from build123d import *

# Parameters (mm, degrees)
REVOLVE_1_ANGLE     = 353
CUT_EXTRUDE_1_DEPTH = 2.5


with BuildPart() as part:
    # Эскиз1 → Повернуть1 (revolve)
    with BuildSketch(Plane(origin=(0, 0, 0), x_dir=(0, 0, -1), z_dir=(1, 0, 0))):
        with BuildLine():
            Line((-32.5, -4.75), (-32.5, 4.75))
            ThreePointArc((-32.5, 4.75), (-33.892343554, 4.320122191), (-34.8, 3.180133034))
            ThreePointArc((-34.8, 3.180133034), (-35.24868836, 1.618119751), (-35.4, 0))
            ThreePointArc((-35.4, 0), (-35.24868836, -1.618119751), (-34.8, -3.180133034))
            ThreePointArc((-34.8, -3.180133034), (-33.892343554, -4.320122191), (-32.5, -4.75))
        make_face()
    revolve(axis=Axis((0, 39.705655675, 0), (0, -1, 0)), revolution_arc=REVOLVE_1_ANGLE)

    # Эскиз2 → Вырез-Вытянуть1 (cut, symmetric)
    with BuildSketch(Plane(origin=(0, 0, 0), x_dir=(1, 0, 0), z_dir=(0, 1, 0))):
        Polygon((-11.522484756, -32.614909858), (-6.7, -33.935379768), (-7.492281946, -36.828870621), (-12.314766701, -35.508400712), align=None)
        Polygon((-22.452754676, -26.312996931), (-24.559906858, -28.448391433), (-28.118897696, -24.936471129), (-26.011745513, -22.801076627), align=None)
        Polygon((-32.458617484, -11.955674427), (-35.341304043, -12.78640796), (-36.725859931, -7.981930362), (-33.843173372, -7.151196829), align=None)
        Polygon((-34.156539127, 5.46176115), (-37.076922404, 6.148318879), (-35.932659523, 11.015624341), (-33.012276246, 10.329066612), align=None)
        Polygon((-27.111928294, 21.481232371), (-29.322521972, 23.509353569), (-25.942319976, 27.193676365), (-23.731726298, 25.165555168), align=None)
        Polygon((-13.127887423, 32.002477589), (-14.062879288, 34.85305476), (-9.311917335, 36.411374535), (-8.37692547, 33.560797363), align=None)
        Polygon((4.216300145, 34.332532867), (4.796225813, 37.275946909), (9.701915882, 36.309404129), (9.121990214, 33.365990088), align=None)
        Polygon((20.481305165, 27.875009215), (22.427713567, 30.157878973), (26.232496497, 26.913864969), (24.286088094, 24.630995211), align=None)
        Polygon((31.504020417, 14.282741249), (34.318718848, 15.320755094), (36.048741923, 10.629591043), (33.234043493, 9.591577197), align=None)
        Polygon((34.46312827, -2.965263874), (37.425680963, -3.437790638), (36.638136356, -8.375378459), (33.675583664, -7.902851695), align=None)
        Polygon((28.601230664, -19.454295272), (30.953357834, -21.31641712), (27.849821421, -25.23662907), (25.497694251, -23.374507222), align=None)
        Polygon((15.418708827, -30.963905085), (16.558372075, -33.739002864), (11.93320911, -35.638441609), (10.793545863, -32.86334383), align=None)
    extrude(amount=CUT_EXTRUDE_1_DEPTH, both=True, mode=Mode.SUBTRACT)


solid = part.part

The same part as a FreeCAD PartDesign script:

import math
import FreeCAD as App
import Part
import Sketcher
from FreeCAD import Vector


def add_polygon(sketch, points):
    """Adds a closed chain of lines whose ends are joined by coincident constraints."""
    first, n = sketch.GeometryCount, len(points)
    for a, b in zip(points, points[1:] + points[:1]):
        sketch.addGeometry(Part.LineSegment(App.Vector(*a, 0), App.Vector(*b, 0)), False)
    for i in range(n):
        sketch.addConstraint(Sketcher.Constraint("Coincident", first + i, 2, first + (i + 1) % n, 1))

doc = App.newDocument("Part")
body = doc.addObject("PartDesign::Body", "Body")

# Sketch on YZ plane
sketch1 = body.newObject("Sketcher::SketchObject", "Sketch")
sketch1.AttachmentSupport = (doc.getObject("YZ_Plane"), [""])
sketch1.MapMode = "FlatFace"
sketch1.addGeometry([
    Part.LineSegment(Vector(-4.75, 32.5, 0), Vector(4.75, 32.5, 0)),  # 0
    Part.ArcOfCircle(Part.Circle(Vector(2.28021, 32.5, 0), Vector(0, 0, 1), 2.46979), math.radians(0), math.radians(68.631049)),  # 1
    Part.ArcOfCircle(Part.Circle(Vector(0, 26.672295, 0), Vector(0, 0, 1), 8.727705), math.radians(68.631049), math.radians(90)),  # 2
    Part.ArcOfCircle(Part.Circle(Vector(0, 26.672295, 0), Vector(0, 0, 1), 8.727705), math.radians(90), math.radians(111.368951)),  # 3
    Part.ArcOfCircle(Part.Circle(Vector(-2.28021, 32.5, 0), Vector(0, 0, 1), 2.46979), math.radians(111.368951), math.radians(180)),  # 4
], False)
sketch1.addConstraint([
    Sketcher.Constraint("Coincident", 0, 2, 1, 1),
    Sketcher.Constraint("Tangent", 1, 2, 2, 1),
    Sketcher.Constraint("Tangent", 2, 2, 3, 1),
    Sketcher.Constraint("Tangent", 3, 2, 4, 1),
    Sketcher.Constraint("Coincident", 4, 2, 0, 1),
    Sketcher.Constraint("Horizontal", 0),
    Sketcher.Constraint("Equal", 2, 3),
    Sketcher.Constraint("Equal", 1, 4),
    Sketcher.Constraint("Symmetric", 1, 3, 4, 3, -2),
    Sketcher.Constraint("PointOnObject", 2, 2, -2),
    Sketcher.Constraint("Horizontal", 4, 3, 0, 2),
    Sketcher.Constraint("DistanceX", 0, 1, 0, 2, 9.5),
    Sketcher.Constraint("DistanceY", -1, 1, 1, 3, 32.5),
    Sketcher.Constraint("DistanceY", -1, 1, 1, 2, 34.8),
    Sketcher.Constraint("DistanceY", -1, 1, 2, 2, 35.4),
])
revolution = body.newObject("PartDesign::Revolution", "Revolution")
revolution.Profile = sketch1
revolution.ReferenceAxis = (sketch1, ["H_Axis"])
revolution.Angle = 353
revolution.Reversed = True

# Sketch on XZ plane
sketch2 = body.newObject("Sketcher::SketchObject", "Sketch001")
sketch2.AttachmentSupport = (doc.getObject("XZ_Plane"), [""])
sketch2.MapMode = "FlatFace"
add_polygon(sketch2, [(-6.7, 33.93538), (-11.522485, 32.61491), (-12.314767, 35.508401), (-7.492282, 36.828871)])  # lines 0-3
add_polygon(sketch2, [(-24.559907, 28.448391), (-22.452755, 26.312997), (-26.011746, 22.801077), (-28.118898, 24.936471)])  # lines 4-7
add_polygon(sketch2, [(-35.341304, 12.786408), (-32.458617, 11.955674), (-33.843173, 7.151197), (-36.72586, 7.98193)])  # lines 8-11
add_polygon(sketch2, [(-37.076922, -6.148319), (-34.156539, -5.461761), (-33.012276, -10.329067), (-35.93266, -11.015624)])  # lines 12-15
add_polygon(sketch2, [(-29.322522, -23.509354), (-27.111928, -21.481232), (-23.731726, -25.165555), (-25.94232, -27.193676)])  # lines 16-19
add_polygon(sketch2, [(-14.062879, -34.853055), (-13.127887, -32.002478), (-8.376925, -33.560797), (-9.311917, -36.411375)])  # lines 20-23
add_polygon(sketch2, [(4.796226, -37.275947), (4.2163, -34.332533), (9.12199, -33.36599), (9.701916, -36.309404)])  # lines 24-27
add_polygon(sketch2, [(22.427714, -30.157879), (20.481305, -27.875009), (24.286088, -24.630995), (26.232496, -26.913865)])  # lines 28-31
add_polygon(sketch2, [(34.318719, -15.320755), (31.50402, -14.282741), (33.234043, -9.591577), (36.048742, -10.629591)])  # lines 32-35
add_polygon(sketch2, [(37.425681, 3.437791), (34.463128, 2.965264), (33.675584, 7.902852), (36.638136, 8.375378)])  # lines 36-39
add_polygon(sketch2, [(30.953358, 21.316417), (28.601231, 19.454295), (25.497694, 23.374507), (27.849821, 25.236629)])  # lines 40-43
add_polygon(sketch2, [(16.558372, 33.739003), (15.418709, 30.963905), (10.793546, 32.863344), (11.933209, 35.638442)])  # lines 44-47
sketch2.addConstraint([
    Sketcher.Constraint("Perpendicular", 0, 1),
    Sketcher.Constraint("Perpendicular", 1, 2),
    Sketcher.Constraint("Perpendicular", 2, 3),
    Sketcher.Constraint("Perpendicular", 4, 5),
    Sketcher.Constraint("Perpendicular", 5, 6),
    Sketcher.Constraint("Perpendicular", 6, 7),
    Sketcher.Constraint("Perpendicular", 8, 9),
    Sketcher.Constraint("Perpendicular", 9, 10),
    Sketcher.Constraint("Perpendicular", 10, 11),
    Sketcher.Constraint("Perpendicular", 12, 13),
    Sketcher.Constraint("Perpendicular", 13, 14),
    Sketcher.Constraint("Perpendicular", 14, 15),
    Sketcher.Constraint("Perpendicular", 16, 17),
    Sketcher.Constraint("Perpendicular", 17, 18),
    Sketcher.Constraint("Perpendicular", 18, 19),
    Sketcher.Constraint("Perpendicular", 20, 21),
    Sketcher.Constraint("Perpendicular", 21, 22),
    Sketcher.Constraint("Perpendicular", 22, 23),
    Sketcher.Constraint("Perpendicular", 24, 25),
    Sketcher.Constraint("Perpendicular", 25, 26),
    Sketcher.Constraint("Perpendicular", 26, 27),
    Sketcher.Constraint("Perpendicular", 28, 29),
    Sketcher.Constraint("Perpendicular", 29, 30),
    Sketcher.Constraint("Perpendicular", 30, 31),
    Sketcher.Constraint("Perpendicular", 32, 33),
    Sketcher.Constraint("Perpendicular", 33, 34),
    Sketcher.Constraint("Perpendicular", 34, 35),
    Sketcher.Constraint("Perpendicular", 36, 37),
    Sketcher.Constraint("Perpendicular", 37, 38),
    Sketcher.Constraint("Perpendicular", 38, 39),
    Sketcher.Constraint("Perpendicular", 40, 41),
    Sketcher.Constraint("Perpendicular", 41, 42),
    Sketcher.Constraint("Perpendicular", 42, 43),
    Sketcher.Constraint("Perpendicular", 44, 45),
    Sketcher.Constraint("Perpendicular", 45, 46),
    Sketcher.Constraint("Perpendicular", 46, 47),
    Sketcher.Constraint("Equal", 3, 4),
    Sketcher.Constraint("Equal", 2, 5),
    Sketcher.Constraint("Equal", 6, 8),
    Sketcher.Constraint("Equal", 7, 9),
    Sketcher.Constraint("Equal", 10, 12),
    Sketcher.Constraint("Equal", 11, 13),
    Sketcher.Constraint("Equal", 14, 16),
    Sketcher.Constraint("Equal", 15, 17),
    Sketcher.Constraint("Equal", 18, 20),
    Sketcher.Constraint("Equal", 19, 21),
    Sketcher.Constraint("Equal", 22, 24),
    Sketcher.Constraint("Equal", 23, 25),
    Sketcher.Constraint("Equal", 26, 28),
    Sketcher.Constraint("Equal", 27, 29),
    Sketcher.Constraint("Equal", 30, 32),
    Sketcher.Constraint("Equal", 31, 33),
    Sketcher.Constraint("Equal", 34, 36),
    Sketcher.Constraint("Equal", 35, 37),
    Sketcher.Constraint("Equal", 38, 40),
    Sketcher.Constraint("Equal", 39, 41),
    Sketcher.Constraint("Equal", 42, 44),
    Sketcher.Constraint("Equal", 43, 45),
    Sketcher.Constraint("Distance", 0, 5.0),
    Sketcher.Constraint("Distance", 1, 3.0),
    Sketcher.Constraint("DistanceX", 3, 2, -1, 1, 6.7),
    Sketcher.Constraint("DistanceY", -1, 1, 1, 2, 35.508401),
    Sketcher.Constraint("DistanceX", -1, 1, 24, 2, 4.2163),
    Sketcher.Constraint("DistanceY", 9, 2, 4, 2, 19.1618),
    Sketcher.Constraint("DistanceX", 10, 2, 14, 2, 0.7932),
    Sketcher.Constraint("DistanceY", 14, 2, 8, 2, 22.971299),
    Sketcher.Constraint("DistanceX", 16, 2, 17, 2, 3.380202),
    Sketcher.Constraint("DistanceY", 20, 2, 18, 2, 4.808801),
    Sketcher.Constraint("DistanceX", 17, 2, 21, 2, 15.354801),
    Sketcher.Constraint("DistanceY", 22, 2, 18, 2, 9.217698),
    Sketcher.Constraint("DistanceY", 31, 2, 33, 2, 20.566302),
    Sketcher.Constraint("DistanceX", 33, 2, 34, 2, 2.814698),
    Sketcher.Constraint("DistanceX", 46, 2, 44, 2, 3.4855),
    Sketcher.Constraint("DistanceY", -1, 1, 0, 2, 32.61491),
    Sketcher.Constraint("DistanceY", -1, 1, 6, 2, 24.936471),
    Sketcher.Constraint("DistanceY", -1, 1, 7, 2, 28.448391),
    Sketcher.Constraint("DistanceX", 10, 2, -1, 1, 36.72586),
    Sketcher.Constraint("DistanceY", -1, 1, 10, 2, 7.98193),
    Sketcher.Constraint("DistanceX", 12, 2, -1, 1, 34.156539),
    Sketcher.Constraint("DistanceX", 16, 2, -1, 1, 27.111928),
    Sketcher.Constraint("DistanceX", -1, 1, 25, 2, 9.12199),
    Sketcher.Constraint("DistanceY", 25, 2, -1, 1, 33.36599),
    Sketcher.Constraint("DistanceY", 28, 2, -1, 1, 27.875009),
    Sketcher.Constraint("DistanceX", -1, 1, 29, 2, 24.286088),
    Sketcher.Constraint("DistanceY", 31, 2, -1, 1, 30.157879),
    Sketcher.Constraint("DistanceX", -1, 1, 32, 2, 31.50402),
    Sketcher.Constraint("DistanceX", -1, 1, 36, 2, 34.463128),
    Sketcher.Constraint("DistanceY", -1, 1, 37, 2, 7.902852),
    Sketcher.Constraint("DistanceY", -1, 1, 38, 2, 8.375378),
    Sketcher.Constraint("DistanceX", -1, 1, 40, 2, 28.601231),
    Sketcher.Constraint("DistanceX", -1, 1, 42, 2, 27.849821),
    Sketcher.Constraint("DistanceY", -1, 1, 42, 2, 25.236629),
    Sketcher.Constraint("DistanceX", -1, 1, 44, 2, 15.418709),
    Sketcher.Constraint("DistanceY", -1, 1, 46, 2, 35.638442),
    Sketcher.Constraint("DistanceX", 4, 2, 0, 2, 10.93027),
    Sketcher.Constraint("DistanceY", 16, 2, 14, 2, 10.465608),
])
pocket1 = body.newObject("PartDesign::Pocket", "Pocket")
pocket1.Profile = sketch2
pocket1.Length = 5
pocket1.Midplane = True

doc.recompute()
